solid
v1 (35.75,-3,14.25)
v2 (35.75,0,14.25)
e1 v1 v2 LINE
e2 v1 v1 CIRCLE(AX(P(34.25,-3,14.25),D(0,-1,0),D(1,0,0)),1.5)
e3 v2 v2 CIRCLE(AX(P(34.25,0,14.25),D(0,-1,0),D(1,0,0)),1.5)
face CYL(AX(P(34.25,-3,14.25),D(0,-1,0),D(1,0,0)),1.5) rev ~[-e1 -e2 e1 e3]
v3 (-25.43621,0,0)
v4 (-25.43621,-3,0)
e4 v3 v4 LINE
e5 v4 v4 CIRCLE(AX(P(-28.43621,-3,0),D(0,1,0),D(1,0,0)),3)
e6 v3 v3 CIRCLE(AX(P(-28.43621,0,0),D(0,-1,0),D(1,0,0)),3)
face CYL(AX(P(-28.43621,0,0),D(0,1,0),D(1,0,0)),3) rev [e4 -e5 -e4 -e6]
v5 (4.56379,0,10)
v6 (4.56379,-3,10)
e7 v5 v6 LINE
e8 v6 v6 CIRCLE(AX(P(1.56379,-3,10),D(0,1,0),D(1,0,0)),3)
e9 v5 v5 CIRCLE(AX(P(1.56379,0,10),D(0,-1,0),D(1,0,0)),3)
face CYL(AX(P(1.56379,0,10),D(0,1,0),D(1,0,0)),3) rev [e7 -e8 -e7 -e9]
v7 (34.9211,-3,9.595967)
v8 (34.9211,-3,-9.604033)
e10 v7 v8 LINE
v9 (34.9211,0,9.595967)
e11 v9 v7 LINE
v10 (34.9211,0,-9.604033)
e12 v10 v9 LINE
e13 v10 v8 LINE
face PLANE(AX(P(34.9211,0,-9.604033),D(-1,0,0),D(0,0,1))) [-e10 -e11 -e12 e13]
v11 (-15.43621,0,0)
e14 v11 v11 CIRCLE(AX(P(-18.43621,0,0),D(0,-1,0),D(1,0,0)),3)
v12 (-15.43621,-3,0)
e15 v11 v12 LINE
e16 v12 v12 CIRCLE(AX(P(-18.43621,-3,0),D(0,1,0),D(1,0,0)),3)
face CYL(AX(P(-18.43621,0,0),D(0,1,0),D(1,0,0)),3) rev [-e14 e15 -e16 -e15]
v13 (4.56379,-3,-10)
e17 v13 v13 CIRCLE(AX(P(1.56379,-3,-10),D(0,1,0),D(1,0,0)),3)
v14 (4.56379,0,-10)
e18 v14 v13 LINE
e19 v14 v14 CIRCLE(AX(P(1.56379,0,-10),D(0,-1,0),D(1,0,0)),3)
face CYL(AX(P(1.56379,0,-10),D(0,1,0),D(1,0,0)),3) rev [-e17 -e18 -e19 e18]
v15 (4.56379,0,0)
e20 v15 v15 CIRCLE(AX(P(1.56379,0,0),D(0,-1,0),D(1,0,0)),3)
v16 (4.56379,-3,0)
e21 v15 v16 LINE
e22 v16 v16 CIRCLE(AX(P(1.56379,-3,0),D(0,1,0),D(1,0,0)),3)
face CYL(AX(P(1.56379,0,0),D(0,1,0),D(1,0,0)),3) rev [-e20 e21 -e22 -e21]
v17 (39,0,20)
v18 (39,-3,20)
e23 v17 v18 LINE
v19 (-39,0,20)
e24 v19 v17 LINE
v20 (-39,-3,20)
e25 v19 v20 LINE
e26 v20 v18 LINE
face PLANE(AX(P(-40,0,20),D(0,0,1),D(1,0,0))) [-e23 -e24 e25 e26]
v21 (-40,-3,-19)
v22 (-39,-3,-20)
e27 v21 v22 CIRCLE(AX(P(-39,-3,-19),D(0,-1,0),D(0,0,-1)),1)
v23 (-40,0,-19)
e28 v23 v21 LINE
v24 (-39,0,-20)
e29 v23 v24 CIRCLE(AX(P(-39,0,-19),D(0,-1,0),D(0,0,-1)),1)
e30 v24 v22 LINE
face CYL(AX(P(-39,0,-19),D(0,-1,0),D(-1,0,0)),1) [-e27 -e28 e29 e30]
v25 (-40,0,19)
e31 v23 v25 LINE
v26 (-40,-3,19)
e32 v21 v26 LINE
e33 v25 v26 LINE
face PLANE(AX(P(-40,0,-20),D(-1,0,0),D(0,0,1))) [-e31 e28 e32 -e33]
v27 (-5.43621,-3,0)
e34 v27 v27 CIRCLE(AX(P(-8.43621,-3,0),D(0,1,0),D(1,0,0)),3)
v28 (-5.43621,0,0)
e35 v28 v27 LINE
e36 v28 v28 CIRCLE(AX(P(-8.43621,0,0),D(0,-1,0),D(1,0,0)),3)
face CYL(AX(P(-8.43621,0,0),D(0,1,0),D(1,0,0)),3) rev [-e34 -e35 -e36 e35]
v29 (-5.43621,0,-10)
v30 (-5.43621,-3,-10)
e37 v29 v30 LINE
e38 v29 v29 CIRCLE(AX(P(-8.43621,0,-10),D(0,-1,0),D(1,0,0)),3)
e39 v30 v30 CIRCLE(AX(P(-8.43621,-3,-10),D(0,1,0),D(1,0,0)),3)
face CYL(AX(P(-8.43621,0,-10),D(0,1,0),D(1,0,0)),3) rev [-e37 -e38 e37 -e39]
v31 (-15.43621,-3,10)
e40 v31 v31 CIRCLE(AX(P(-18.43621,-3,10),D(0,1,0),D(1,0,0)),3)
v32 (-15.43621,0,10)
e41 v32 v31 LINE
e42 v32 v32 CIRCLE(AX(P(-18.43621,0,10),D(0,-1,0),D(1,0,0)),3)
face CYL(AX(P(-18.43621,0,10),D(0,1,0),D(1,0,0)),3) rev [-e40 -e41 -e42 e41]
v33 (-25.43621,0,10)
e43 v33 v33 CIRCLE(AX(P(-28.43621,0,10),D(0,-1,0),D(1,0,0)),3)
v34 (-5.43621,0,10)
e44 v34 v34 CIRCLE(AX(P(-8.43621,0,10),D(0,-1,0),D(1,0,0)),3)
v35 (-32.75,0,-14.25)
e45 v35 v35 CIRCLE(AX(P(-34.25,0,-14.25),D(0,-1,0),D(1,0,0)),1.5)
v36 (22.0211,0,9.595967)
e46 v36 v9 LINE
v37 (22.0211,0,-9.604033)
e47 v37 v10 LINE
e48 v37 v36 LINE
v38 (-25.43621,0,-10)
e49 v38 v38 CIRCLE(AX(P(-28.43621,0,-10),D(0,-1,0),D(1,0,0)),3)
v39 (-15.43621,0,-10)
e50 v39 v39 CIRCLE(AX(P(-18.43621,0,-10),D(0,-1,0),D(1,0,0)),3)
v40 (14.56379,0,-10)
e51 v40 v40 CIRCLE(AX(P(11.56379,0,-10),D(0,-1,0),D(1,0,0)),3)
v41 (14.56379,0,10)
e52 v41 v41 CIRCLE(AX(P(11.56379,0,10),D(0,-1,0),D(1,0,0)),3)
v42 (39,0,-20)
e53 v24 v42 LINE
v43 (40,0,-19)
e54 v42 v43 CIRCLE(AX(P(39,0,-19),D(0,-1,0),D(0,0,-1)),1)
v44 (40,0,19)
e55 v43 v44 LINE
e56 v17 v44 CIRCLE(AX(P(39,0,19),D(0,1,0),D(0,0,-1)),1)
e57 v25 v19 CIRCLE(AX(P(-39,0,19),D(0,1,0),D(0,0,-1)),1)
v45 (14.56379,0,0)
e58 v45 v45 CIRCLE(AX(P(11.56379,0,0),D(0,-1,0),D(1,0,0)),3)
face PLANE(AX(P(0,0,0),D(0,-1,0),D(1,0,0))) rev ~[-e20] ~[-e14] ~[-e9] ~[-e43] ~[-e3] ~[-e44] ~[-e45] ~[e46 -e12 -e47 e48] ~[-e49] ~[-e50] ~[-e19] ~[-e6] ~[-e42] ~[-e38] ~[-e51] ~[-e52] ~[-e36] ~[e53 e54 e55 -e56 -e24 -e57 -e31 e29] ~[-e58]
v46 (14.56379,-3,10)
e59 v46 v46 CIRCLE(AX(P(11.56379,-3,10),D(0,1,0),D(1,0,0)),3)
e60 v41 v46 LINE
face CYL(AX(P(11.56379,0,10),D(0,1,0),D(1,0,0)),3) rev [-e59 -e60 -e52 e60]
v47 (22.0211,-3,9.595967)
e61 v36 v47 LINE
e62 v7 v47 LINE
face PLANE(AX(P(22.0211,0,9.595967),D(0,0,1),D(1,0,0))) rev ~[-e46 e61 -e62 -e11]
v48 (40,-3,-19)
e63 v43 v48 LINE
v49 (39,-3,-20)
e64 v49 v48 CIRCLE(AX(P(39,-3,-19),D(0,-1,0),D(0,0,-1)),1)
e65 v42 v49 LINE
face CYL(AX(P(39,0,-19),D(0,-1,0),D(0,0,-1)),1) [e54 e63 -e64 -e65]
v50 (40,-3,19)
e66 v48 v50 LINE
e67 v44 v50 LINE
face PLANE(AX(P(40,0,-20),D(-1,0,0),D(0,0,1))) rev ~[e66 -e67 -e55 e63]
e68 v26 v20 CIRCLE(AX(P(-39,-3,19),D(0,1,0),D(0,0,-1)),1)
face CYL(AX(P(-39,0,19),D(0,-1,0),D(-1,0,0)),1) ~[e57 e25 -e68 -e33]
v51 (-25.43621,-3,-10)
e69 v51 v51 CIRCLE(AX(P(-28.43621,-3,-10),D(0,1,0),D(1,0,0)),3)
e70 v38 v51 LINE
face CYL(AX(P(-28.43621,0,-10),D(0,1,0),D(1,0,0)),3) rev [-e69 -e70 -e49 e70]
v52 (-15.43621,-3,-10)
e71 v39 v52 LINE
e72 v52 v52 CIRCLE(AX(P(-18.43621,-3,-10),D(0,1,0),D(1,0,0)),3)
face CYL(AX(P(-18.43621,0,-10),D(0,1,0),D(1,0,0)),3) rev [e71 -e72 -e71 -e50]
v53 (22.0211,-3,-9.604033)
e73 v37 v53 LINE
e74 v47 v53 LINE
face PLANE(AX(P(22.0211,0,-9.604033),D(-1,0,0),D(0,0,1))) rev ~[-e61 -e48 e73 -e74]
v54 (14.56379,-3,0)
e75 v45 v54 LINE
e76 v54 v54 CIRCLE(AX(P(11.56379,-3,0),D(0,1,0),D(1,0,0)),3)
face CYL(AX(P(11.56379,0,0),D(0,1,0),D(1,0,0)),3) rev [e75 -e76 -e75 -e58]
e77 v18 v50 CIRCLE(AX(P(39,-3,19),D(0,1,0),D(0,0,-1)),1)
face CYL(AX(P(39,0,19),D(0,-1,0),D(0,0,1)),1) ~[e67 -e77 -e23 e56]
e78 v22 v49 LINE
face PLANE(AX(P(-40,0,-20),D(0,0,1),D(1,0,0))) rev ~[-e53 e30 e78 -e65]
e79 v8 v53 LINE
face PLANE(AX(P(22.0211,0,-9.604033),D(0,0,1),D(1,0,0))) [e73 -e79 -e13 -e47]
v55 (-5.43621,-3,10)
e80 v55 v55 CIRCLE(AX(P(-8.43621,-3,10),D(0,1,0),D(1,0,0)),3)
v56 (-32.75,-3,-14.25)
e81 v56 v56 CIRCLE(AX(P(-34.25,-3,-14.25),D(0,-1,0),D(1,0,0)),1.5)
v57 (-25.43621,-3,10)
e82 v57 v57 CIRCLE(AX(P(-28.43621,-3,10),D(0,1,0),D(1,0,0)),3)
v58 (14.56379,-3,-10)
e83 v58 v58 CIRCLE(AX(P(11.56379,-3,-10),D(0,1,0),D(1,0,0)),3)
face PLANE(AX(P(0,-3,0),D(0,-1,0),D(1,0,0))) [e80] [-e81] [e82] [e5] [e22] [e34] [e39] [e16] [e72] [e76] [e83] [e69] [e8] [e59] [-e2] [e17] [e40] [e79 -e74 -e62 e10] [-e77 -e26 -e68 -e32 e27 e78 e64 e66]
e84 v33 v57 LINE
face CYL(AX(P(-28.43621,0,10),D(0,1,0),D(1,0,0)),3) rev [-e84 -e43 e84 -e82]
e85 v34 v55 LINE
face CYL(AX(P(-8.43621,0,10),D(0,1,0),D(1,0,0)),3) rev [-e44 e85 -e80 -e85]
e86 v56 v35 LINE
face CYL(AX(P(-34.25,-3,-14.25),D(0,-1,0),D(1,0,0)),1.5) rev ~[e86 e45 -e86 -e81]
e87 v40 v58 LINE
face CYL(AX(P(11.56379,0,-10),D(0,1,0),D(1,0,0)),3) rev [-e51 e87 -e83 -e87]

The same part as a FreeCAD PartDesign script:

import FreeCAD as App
import Part
import Sketcher

V = App.Vector
Q = App.Units.Quantity


def edges_at(feature, points):
    """Names of the edges that pass closest to the given points."""
    edges = feature.Shape.Edges
    near = lambda p: min(range(len(edges)), key=lambda i: edges[i].distToShape(Part.Vertex(*p))[0])
    return sorted({f"Edge{near(p) + 1}" for p in points})


def add_polygon(sketch, points):
    """Adds a closed chain of lines whose ends are joined by coincident constraints."""
    first, n = sketch.GeometryCount, len(points)
    for a, b in zip(points, points[1:] + points[:1]):
        sketch.addGeometry(Part.LineSegment(App.Vector(*a, 0), App.Vector(*b, 0)), False)
    for i in range(n):
        sketch.addConstraint(Sketcher.Constraint("Coincident", first + i, 2, first + (i + 1) % n, 1))

doc = App.newDocument("Part")
body = doc.addObject("PartDesign::Body", "Body")

sketch1 = doc.addObject("Sketcher::SketchObject", "Sketch")
body.addObject(sketch1)
sketch1.AttachmentSupport = (doc.XZ_Plane, [""])
sketch1.MapMode = "FlatFace"
add_polygon(sketch1, [(-40, 20), (-40, -20), (40, -20), (40, 20)])
sketch1.addConstraint([
    Sketcher.Constraint("Vertical", 0),
    Sketcher.Constraint("Horizontal", 1),
    Sketcher.Constraint("Vertical", 2),
    Sketcher.Constraint("Horizontal", 3),
    Sketcher.Constraint("Symmetric", 0, 2, 2, 2, -1, 1),
    Sketcher.Constraint("DistanceX", 1, 1, 1, 2, Q("80 mm")),
    Sketcher.Constraint("DistanceY", 0, 2, 0, 1, Q("40 mm")),
])
pad1 = doc.addObject("PartDesign::Pad", "Pad")
body.addObject(pad1)
pad1.Profile = sketch1
pad1.Length = 3

sketch2 = doc.addObject("Sketcher::SketchObject", "Sketch001")
body.addObject(sketch2)
sketch2.AttachmentSupport = (doc.XZ_Plane, [""])
sketch2.MapMode = "FlatFace"
sketch2.addGeometry(Part.Circle(V(-28.43621, 10, 0), V(0, 0, 1), 3), False)
sketch2.addGeometry(Part.Circle(V(-28.43621, 0, 0), V(0, 0, 1), 3), False)
sketch2.addGeometry(Part.Circle(V(-28.43621, -10, 0), V(0, 0, 1), 3), False)
sketch2.addGeometry(Part.Circle(V(-18.43621, 10, 0), V(0, 0, 1), 3), False)
sketch2.addGeometry(Part.Circle(V(-18.43621, 0, 0), V(0, 0, 1), 3), False)
sketch2.addGeometry(Part.Circle(V(-18.43621, -10, 0), V(0, 0, 1), 3), False)
sketch2.addGeometry(Part.Circle(V(-8.43621, 10, 0), V(0, 0, 1), 3), False)
sketch2.addGeometry(Part.Circle(V(-8.43621, 0, 0), V(0, 0, 1), 3), False)
sketch2.addGeometry(Part.Circle(V(-8.43621, -10, 0), V(0, 0, 1), 3), False)
sketch2.addGeometry(Part.Circle(V(1.56379, 10, 0), V(0, 0, 1), 3), False)
sketch2.addGeometry(Part.Circle(V(1.56379, 0, 0), V(0, 0, 1), 3), False)
sketch2.addGeometry(Part.Circle(V(1.56379, -10, 0), V(0, 0, 1), 3), False)
sketch2.addGeometry(Part.Circle(V(11.56379, 10, 0), V(0, 0, 1), 3), False)
sketch2.addGeometry(Part.Circle(V(11.56379, 0, 0), V(0, 0, 1), 3), False)
sketch2.addGeometry(Part.Circle(V(11.56379, -10, 0), V(0, 0, 1), 3), False)
add_polygon(sketch2, [(22.0211, 9.595967), (22.0211, -9.604033), (34.9211, -9.604033), (34.9211, 9.595967)])
sketch2.addConstraint([
    Sketcher.Constraint("Vertical", 15),
    Sketcher.Constraint("Horizontal", 16),
    Sketcher.Constraint("Vertical", 17),
    Sketcher.Constraint("Horizontal", 18),
    Sketcher.Constraint("Equal", 0, 1),
    Sketcher.Constraint("Equal", 1, 2),
    Sketcher.Constraint("Equal", 2, 3),
    Sketcher.Constraint("Equal", 3, 4),
    Sketcher.Constraint("Equal", 4, 5),
    Sketcher.Constraint("Equal", 5, 6),
    Sketcher.Constraint("Equal", 6, 7),
    Sketcher.Constraint("Equal", 7, 8),
    Sketcher.Constraint("Equal", 8, 9),
    Sketcher.Constraint("Equal", 9, 10),
    Sketcher.Constraint("Equal", 10, 11),
    Sketcher.Constraint("Equal", 11, 12),
    Sketcher.Constraint("Equal", 12, 13),
    Sketcher.Constraint("Equal", 13, 14),
    Sketcher.Constraint("Symmetric", 0, 3, 2, 3, -1),
    Sketcher.Constraint("Symmetric", 3, 3, 5, 3, -1),
    Sketcher.Constraint("Symmetric", 6, 3, 8, 3, -1),
    Sketcher.Constraint("Symmetric", 9, 3, 11, 3, -1),
    Sketcher.Constraint("Symmetric", 12, 3, 14, 3, -1),
    Sketcher.Constraint("PointOnObject", 1, 3, -1),
    Sketcher.Constraint("PointOnObject", 4, 3, -1),
    Sketcher.Constraint("PointOnObject", 7, 3, -1),
    Sketcher.Constraint("PointOnObject", 10, 3, -1),
    Sketcher.Constraint("PointOnObject", 13, 3, -1),
    Sketcher.Constraint("Horizontal", 0, 3, 3, 3),
    Sketcher.Constraint("Horizontal", 3, 3, 6, 3),
    Sketcher.Constraint("Horizontal", 6, 3, 9, 3),
    Sketcher.Constraint("Horizontal", 9, 3, 12, 3),
    Sketcher.Constraint("Vertical", 0, 3, 1, 3),
    Sketcher.Constraint("Vertical", 3, 3, 4, 3),
    Sketcher.Constraint("Vertical", 6, 3, 7, 3),
    Sketcher.Constraint("Vertical", 9, 3, 10, 3),
    Sketcher.Constraint("Vertical", 12, 3, 13, 3),
    Sketcher.Constraint("Diameter", 0, Q("6 mm")),
    Sketcher.Constraint("DistanceX", 16, 1, 16, 2, Q("12.9 mm")),
    Sketcher.Constraint("DistanceY", 15, 2, 15, 1, Q("19.2 mm")),
    Sketcher.Constraint("DistanceY", -1, 1, 0, 3, Q("10 mm")),
    Sketcher.Constraint("DistanceX", 0, 3, 3, 3, Q("10 mm")),
    Sketcher.Constraint("DistanceX", 3, 3, 6, 3, Q("10 mm")),
    Sketcher.Constraint("DistanceX", 6, 3, 9, 3, Q("10 mm")),
    Sketcher.Constraint("DistanceX", 9, 3, 12, 3, Q("10 mm")),
    Sketcher.Constraint("DistanceX", -1, 1, 15, 2, Q("22.0211 mm")),
    Sketcher.Constraint("DistanceX", 0, 3, -1, 1, Q("28.43621 mm")),
    Sketcher.Constraint("DistanceY", 15, 2, -1, 1, Q("9.604033 mm")),
])
pocket1 = doc.addObject("PartDesign::Pocket", "Pocket")
body.addObject(pocket1)
pocket1.Profile = sketch2
pocket1.Type = "ThroughAll"
pocket1.Reversed = True
doc.recompute()

fillet = doc.addObject("PartDesign::Fillet", "Fillet")
body.addObject(fillet)
fillet.Base = (pocket1, edges_at(pocket1, [
    (-40, -1.5, 20),
    (40, -1.5, 20),
    (40, -1.5, -20),
    (-40, -1.5, -20),
]))
fillet.Radius = 1

sketch3 = doc.addObject("Sketcher::SketchObject", "Sketch002")
body.addObject(sketch3)
sketch3.AttachmentSupport = (doc.XZ_Plane, [""])
sketch3.MapMode = "FlatFace"
sketch3.AttachmentOffset = App.Placement(V(0, 0, 3), App.Rotation())
sketch3.addGeometry([
    Part.Circle(V(34.25, 14.25, 0), V(0, 0, 1), 1.5),
    Part.Circle(V(-34.25, -14.25, 0), V(0, 0, 1), 1.5),
], False)
sketch3.addConstraint([
    Sketcher.Constraint("Equal", 0, 1),
    Sketcher.Constraint("Symmetric", 0, 3, 1, 3, -1, 1),
    Sketcher.Constraint("Diameter", 0, Q("3 mm")),
    Sketcher.Constraint("DistanceX", 1, 3, 0, 3, Q("68.5 mm")),
    Sketcher.Constraint("DistanceY", 1, 3, 0, 3, Q("28.5 mm")),
])
pocket2 = doc.addObject("PartDesign::Pocket", "Pocket001")
body.addObject(pocket2)
pocket2.Profile = sketch3
pocket2.Length = 25

doc.recompute()
